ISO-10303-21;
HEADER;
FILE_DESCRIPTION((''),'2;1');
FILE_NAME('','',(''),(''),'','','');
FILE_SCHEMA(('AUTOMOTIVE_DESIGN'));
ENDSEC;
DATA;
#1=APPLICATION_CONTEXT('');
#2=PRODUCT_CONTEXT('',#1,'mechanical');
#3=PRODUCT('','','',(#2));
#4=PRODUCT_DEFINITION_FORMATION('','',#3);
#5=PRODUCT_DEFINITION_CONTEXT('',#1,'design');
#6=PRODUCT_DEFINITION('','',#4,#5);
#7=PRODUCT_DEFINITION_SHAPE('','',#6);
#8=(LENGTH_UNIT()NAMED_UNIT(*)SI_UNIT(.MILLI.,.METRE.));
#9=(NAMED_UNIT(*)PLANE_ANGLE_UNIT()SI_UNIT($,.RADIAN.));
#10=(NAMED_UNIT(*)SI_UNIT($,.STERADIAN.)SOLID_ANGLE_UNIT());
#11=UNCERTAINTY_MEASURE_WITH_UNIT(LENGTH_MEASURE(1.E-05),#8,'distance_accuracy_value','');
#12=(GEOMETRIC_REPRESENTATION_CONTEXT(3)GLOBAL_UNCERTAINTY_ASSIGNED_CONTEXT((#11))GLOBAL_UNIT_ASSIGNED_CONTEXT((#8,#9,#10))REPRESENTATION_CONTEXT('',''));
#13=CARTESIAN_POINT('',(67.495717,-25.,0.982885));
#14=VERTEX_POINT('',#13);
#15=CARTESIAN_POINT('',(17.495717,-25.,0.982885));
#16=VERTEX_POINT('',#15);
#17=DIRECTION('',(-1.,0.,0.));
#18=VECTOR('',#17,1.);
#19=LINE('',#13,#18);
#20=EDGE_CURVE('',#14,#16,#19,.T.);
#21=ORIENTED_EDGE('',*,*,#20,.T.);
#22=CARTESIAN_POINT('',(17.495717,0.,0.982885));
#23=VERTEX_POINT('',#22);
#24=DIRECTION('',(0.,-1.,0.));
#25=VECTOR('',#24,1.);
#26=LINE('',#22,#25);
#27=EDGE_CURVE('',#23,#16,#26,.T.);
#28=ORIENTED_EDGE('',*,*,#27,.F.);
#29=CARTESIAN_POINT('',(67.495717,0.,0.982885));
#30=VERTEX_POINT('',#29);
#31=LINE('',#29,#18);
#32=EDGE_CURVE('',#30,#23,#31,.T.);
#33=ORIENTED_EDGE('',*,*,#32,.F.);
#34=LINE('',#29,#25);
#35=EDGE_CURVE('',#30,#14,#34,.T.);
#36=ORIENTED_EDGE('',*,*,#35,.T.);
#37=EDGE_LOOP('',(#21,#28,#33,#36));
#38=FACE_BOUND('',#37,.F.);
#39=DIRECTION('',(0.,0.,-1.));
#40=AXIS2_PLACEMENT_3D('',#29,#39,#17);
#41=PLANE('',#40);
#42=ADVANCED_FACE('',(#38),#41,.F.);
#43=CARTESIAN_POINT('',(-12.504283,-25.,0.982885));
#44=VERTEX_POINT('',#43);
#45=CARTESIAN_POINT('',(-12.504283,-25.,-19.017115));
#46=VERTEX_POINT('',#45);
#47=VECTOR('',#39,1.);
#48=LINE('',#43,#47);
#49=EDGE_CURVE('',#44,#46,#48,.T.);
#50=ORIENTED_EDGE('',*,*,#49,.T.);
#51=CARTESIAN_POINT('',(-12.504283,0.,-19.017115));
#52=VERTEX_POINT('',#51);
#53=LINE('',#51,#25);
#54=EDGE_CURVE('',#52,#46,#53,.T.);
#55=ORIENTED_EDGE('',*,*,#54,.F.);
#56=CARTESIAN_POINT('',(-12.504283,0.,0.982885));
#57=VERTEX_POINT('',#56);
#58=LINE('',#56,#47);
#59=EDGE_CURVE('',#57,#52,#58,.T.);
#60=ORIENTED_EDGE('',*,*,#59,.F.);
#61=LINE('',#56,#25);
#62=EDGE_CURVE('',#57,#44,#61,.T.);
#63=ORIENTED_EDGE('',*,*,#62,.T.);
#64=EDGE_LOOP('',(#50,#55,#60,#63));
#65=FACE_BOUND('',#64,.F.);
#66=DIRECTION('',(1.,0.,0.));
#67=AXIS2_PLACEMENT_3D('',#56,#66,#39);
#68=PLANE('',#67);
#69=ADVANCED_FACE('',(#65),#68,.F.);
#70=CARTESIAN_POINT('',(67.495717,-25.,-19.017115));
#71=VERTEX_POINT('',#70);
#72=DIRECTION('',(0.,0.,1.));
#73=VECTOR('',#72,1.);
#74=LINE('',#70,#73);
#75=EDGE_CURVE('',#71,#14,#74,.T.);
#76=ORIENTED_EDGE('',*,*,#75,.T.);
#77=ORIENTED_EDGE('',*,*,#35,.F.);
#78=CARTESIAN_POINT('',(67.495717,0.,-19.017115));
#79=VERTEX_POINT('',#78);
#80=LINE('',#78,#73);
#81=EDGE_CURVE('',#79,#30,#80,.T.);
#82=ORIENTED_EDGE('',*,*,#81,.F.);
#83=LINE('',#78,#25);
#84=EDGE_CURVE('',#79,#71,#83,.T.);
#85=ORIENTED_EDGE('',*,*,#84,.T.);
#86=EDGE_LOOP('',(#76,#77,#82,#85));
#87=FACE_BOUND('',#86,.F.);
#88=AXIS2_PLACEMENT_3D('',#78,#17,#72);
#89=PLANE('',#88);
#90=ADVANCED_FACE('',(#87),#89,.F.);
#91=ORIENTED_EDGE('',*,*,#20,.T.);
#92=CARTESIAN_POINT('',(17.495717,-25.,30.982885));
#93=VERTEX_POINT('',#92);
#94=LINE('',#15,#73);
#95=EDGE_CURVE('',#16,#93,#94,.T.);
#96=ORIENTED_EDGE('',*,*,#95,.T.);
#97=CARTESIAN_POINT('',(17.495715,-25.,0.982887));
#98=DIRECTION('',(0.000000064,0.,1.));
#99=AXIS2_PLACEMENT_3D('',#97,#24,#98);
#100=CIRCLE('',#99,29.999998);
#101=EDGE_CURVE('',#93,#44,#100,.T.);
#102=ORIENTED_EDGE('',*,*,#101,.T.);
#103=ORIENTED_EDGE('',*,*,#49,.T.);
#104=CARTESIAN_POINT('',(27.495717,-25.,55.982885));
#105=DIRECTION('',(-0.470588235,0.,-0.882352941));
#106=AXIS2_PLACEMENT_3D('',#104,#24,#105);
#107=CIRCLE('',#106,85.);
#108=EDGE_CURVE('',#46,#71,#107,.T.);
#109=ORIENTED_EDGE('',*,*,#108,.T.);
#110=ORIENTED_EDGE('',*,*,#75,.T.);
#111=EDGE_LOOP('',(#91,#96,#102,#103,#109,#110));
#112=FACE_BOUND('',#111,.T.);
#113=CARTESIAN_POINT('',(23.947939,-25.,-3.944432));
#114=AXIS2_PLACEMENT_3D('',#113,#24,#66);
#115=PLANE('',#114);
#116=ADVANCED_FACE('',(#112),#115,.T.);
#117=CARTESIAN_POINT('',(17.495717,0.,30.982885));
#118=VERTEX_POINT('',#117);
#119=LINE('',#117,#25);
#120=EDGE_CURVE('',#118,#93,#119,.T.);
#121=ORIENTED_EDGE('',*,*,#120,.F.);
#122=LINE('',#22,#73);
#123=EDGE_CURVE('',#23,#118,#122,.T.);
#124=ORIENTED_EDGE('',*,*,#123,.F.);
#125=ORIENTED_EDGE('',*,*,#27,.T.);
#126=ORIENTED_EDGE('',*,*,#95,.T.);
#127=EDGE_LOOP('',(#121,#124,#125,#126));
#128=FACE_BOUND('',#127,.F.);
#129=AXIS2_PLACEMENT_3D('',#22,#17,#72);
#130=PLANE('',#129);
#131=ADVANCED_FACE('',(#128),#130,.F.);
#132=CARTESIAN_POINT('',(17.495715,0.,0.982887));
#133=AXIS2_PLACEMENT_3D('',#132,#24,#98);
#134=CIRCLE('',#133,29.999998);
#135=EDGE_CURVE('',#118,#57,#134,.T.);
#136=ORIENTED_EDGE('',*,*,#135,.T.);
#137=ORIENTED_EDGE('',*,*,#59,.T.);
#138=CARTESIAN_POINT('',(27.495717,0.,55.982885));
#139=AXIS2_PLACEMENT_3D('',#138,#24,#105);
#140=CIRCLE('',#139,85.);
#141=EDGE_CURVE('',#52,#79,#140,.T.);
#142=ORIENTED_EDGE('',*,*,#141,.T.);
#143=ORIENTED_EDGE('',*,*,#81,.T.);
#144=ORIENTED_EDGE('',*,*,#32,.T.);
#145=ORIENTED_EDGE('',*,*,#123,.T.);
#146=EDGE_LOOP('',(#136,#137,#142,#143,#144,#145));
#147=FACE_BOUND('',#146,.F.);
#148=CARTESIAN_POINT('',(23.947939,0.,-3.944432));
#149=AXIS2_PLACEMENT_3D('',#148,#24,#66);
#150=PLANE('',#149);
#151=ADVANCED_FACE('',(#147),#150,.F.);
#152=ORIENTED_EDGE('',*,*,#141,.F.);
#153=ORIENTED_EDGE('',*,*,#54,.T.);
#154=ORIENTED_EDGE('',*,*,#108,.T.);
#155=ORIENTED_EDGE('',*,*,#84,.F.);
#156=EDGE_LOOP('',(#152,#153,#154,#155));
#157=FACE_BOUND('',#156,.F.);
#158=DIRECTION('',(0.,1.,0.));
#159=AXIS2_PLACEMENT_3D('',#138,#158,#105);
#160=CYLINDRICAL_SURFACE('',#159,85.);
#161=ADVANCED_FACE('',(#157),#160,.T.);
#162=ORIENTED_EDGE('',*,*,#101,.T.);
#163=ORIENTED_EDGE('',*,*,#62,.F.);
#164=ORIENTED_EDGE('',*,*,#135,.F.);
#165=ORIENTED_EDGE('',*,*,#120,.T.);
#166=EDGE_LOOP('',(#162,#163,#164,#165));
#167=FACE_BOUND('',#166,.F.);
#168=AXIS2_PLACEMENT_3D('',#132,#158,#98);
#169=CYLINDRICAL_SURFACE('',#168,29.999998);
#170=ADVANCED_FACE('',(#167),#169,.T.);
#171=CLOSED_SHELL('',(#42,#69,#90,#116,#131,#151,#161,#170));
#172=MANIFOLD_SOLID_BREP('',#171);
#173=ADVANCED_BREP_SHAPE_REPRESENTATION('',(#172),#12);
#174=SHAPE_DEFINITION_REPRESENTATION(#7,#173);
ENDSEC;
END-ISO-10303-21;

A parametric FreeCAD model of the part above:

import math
import FreeCAD as App
import Part
import Sketcher
from FreeCAD import Vector

doc = App.newDocument("Part")
params = doc.addObject("Spreadsheet::Sheet", "Params")
for row, (alias, value) in enumerate([
    ("sketch1_radius", "29.999998 mm"),
    ("sketch1_radius2", "85 mm"),
    ("sketch1_width", "50 mm"),
    ("sketch1_height", "20 mm"),
    ("pad1_length", "25 mm"),
], start=1):
    params.set(f"A{row}", alias)
    params.set(f"B{row}", "=" + value)
    params.setAlias(f"B{row}", alias)

body = doc.addObject("PartDesign::Body", "Body")

# Sketch on XZ plane
sketch1 = body.newObject("Sketcher::SketchObject", "Sketch")
sketch1.AttachmentSupport = (doc.getObject("XZ_Plane"), [""])
sketch1.MapMode = "FlatFace"
sketch1.addGeometry(Part.LineSegment(Vector(67.495717, -19.017115, 0), Vector(67.495717, 0.982885, 0)), False)
sketch1.addGeometry(Part.LineSegment(Vector(67.495717, 0.982885, 0), Vector(17.495717, 0.982885, 0)), False)
sketch1.addGeometry(Part.LineSegment(Vector(17.495717, 0.982885, 0), Vector(17.495717, 30.982885, 0)), False)
sketch1.addGeometry(Part.ArcOfCircle(Part.Circle(Vector(17.495715, 0.982887, 0), Vector(0, 0, 1), 29.999998), math.radians(89.999996), math.radians(180.000004)), False)
sketch1.addGeometry(Part.LineSegment(Vector(-12.504283, 0.982885, 0), Vector(-12.504283, -19.017115, 0)), False)
sketch1.addGeometry(Part.ArcOfCircle(Part.Circle(Vector(27.495717, 55.982885, 0), Vector(0, 0, 1), 85), math.radians(-118.072487), math.radians(-61.927513)), False)
sketch1.addConstraint(Sketcher.Constraint("Coincident", 0, 2, 1, 1))
sketch1.addConstraint(Sketcher.Constraint("Coincident", 1, 2, 2, 1))
sketch1.addConstraint(Sketcher.Constraint("Coincident", 2, 2, 3, 1))
sketch1.addConstraint(Sketcher.Constraint("Tangent", 3, 2, 4, 1))
sketch1.addConstraint(Sketcher.Constraint("Coincident", 4, 2, 5, 1))
sketch1.addConstraint(Sketcher.Constraint("Coincident", 5, 2, 0, 1))
sketch1.addConstraint(Sketcher.Constraint("Vertical", 0))
sketch1.addConstraint(Sketcher.Constraint("Horizontal", 1))
sketch1.addConstraint(Sketcher.Constraint("Vertical", 2))
sketch1.addConstraint(Sketcher.Constraint("Vertical", 4))
sketch1.addConstraint(Sketcher.Constraint("Coincident", 1, 2, 3, 3))
sketch1.addConstraint(Sketcher.Constraint("Horizontal", 4, 2, 5, 2))
sketch1.addConstraint(Sketcher.Constraint("Radius", 3, 29.999998))
sketch1.addConstraint(Sketcher.Constraint("Radius", 5, 85.0))
sketch1.addConstraint(Sketcher.Constraint("DistanceX", 1, 2, 1, 1, 50.0))
sketch1.addConstraint(Sketcher.Constraint("DistanceY", 0, 1, 0, 2, 20.0))
sketch1.addConstraint(Sketcher.Constraint("DistanceX", -1, 1, 3, 3, 17.495715))
sketch1.addConstraint(Sketcher.Constraint("DistanceY", -1, 1, 3, 3, 0.982887))
sketch1.setExpression("Constraints[12]", "Params.sketch1_radius")
sketch1.setExpression("Constraints[13]", "Params.sketch1_radius2")
sketch1.setExpression("Constraints[14]", "Params.sketch1_width")
sketch1.setExpression("Constraints[15]", "Params.sketch1_height")
pad1 = body.newObject("PartDesign::Pad", "Pad")
pad1.Profile = sketch1
pad1.setExpression("Length", "Params.pad1_length")

doc.recompute()
